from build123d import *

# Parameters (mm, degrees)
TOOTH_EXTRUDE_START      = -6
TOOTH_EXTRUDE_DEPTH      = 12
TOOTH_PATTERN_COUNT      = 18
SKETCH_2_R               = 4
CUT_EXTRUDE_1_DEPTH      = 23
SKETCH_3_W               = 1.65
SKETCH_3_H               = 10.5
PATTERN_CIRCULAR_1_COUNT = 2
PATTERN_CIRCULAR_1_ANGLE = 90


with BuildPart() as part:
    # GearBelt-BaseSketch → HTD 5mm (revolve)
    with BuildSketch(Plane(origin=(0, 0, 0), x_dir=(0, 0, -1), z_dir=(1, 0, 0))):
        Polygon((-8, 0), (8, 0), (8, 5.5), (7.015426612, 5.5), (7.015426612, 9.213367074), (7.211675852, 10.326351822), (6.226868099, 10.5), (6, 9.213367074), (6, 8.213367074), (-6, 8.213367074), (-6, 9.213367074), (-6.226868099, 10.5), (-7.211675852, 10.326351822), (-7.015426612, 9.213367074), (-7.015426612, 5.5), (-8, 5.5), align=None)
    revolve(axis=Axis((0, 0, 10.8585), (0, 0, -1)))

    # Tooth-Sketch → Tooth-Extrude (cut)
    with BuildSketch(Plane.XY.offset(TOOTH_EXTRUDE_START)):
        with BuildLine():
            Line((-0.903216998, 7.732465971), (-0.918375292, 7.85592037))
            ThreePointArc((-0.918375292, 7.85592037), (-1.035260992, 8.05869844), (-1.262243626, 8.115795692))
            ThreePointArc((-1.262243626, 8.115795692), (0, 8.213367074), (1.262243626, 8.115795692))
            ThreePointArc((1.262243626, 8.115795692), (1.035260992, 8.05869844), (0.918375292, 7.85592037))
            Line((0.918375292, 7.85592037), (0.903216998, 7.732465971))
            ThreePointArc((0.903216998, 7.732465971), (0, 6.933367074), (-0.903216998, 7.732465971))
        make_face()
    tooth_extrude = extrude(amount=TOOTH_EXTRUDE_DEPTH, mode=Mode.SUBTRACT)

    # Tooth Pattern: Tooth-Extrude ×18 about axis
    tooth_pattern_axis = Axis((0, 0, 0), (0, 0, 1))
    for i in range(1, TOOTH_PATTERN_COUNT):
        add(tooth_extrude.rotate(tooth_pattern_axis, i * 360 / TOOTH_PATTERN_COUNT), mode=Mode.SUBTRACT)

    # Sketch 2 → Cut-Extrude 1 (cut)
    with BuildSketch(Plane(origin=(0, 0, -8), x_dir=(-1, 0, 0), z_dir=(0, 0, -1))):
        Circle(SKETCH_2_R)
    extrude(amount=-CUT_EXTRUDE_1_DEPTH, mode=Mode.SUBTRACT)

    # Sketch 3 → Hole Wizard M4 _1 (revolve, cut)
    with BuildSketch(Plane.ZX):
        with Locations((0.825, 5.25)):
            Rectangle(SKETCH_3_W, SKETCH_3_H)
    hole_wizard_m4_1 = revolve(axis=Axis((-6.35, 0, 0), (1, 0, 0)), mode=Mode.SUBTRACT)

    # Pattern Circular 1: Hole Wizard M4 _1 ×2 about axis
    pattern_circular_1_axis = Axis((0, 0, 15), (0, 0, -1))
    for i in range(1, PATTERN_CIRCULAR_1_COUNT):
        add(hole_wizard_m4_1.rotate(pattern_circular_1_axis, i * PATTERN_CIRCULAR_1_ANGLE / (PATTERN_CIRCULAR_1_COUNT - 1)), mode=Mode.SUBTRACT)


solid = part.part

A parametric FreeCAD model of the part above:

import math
import FreeCAD as App
import Part
import Sketcher
Q = App.Units.Quantity


def add_polygon(sketch, points):
    """Adds a closed chain of lines whose ends are joined by coincident constraints."""
    first, n = sketch.GeometryCount, len(points)
    for a, b in zip(points, points[1:] + points[:1]):
        sketch.addGeometry(Part.LineSegment(App.Vector(*a, 0), App.Vector(*b, 0)), False)
    for i in range(n):
        sketch.addConstraint(Sketcher.Constraint("Coincident", first + i, 2, first + (i + 1) % n, 1))

doc = App.newDocument("Part")
params = doc.addObject("Spreadsheet::Sheet", "Params")
for row, (alias, value) in enumerate([
    ("sketch1_width", "1 mm"),
    ("sketch1_height", "16 mm"),
    ("sketch1_height2", "12 mm"),
    ("sketch1_length", "1 mm"),
    ("sketch1_width2", "5.5 mm"),
    ("revolution_angle", "360 deg"),
    ("sketch2_radius", "0.3 mm"),
    ("sketch2_radius2", "0.91 mm"),
    ("pocket1_length", "12 mm"),
    ("sketch3_diameter", "8 mm"),
    ("pocket2_length", "23 mm"),
    ("sketch4_width", "10.5 mm"),
    ("sketch4_height", "1.65 mm"),
    ("groove_angle", "360 deg"),
], start=1):
    params.set(f"A{row}", alias)
    params.set(f"B{row}", "=" + value)
    params.setAlias(f"B{row}", alias)

body = doc.addObject("PartDesign::Body", "Body")

sketch1 = body.newObject("Sketcher::SketchObject", "Sketch")
sketch1.AttachmentSupport = (doc.getObject("YZ_Plane"), [""])
sketch1.MapMode = "FlatFace"
add_polygon(sketch1, [(0, 8), (0, -8), (5.5, -8), (5.5, -7), (9.2, -7), (10.3, -7.2), (10.5, -6.2), (9.2, -6), (8.2, -6), (8.2, 6), (9.2, 6), (10.5, 6.2), (10.3, 7.2), (9.2, 7), (5.5, 7), (5.5, 8)])
sketch1.addConstraint([
    Sketcher.Constraint("Vertical", 0),
    Sketcher.Constraint("Horizontal", 1),
    Sketcher.Constraint("Vertical", 2),
    Sketcher.Constraint("Horizontal", 3),
    Sketcher.Constraint("Horizontal", 7),
    Sketcher.Constraint("Vertical", 8),
    Sketcher.Constraint("Horizontal", 9),
    Sketcher.Constraint("Horizontal", 13),
    Sketcher.Constraint("Vertical", 14),
    Sketcher.Constraint("Horizontal", 15),
    Sketcher.Constraint("Symmetric", 0, 2, 15, 2, -1, 1),
    Sketcher.Constraint("Symmetric", 6, 2, 9, 2, -1),
    Sketcher.Constraint("Symmetric", 5, 2, 10, 2, -1),
    Sketcher.Constraint("Symmetric", 4, 2, 11, 2, -1),
    Sketcher.Constraint("Symmetric", 3, 2, 12, 2, -1),
    Sketcher.Constraint("Perpendicular", 4, 5),
    Sketcher.Constraint("Perpendicular", 5, 6),
    Sketcher.Constraint("Vertical", 3, 2, 6, 2),
    Sketcher.Constraint("Vertical", 2, 2, 13, 2),
    Sketcher.Constraint("DistanceX", 7, 2, 7, 1, Q("1 mm")),
    Sketcher.Constraint("DistanceY", 0, 2, 0, 1, Q("16 mm")),
    Sketcher.Constraint("DistanceY", 8, 1, 8, 2, Q("12 mm")),
    Sketcher.Constraint("Angle", 4, Q("-10 deg")),
    Sketcher.Constraint("Distance", 5, Q("1 mm")),
    Sketcher.Constraint("DistanceX", 1, 1, 1, 2, Q("5.5 mm")),
    Sketcher.Constraint("DistanceX", 2, 2, 5, 2, Q("5 mm")),
    Sketcher.Constraint("Distance", 6, Q("1.306481 mm")),
])
sketch1.setExpression("Constraints[35]", "Params.sketch1_width")
sketch1.setExpression("Constraints[36]", "Params.sketch1_height")
sketch1.setExpression("Constraints[37]", "Params.sketch1_height2")
sketch1.setExpression("Constraints[39]", "Params.sketch1_length")
sketch1.setExpression("Constraints[40]", "Params.sketch1_width2")
revolution = body.newObject("PartDesign::Revolution", "Revolution")
revolution.Profile = sketch1
revolution.ReferenceAxis = (sketch1, ["V_Axis"])
revolution.setExpression("Angle", "Params.revolution_angle")

sketch2 = body.newObject("Sketcher::SketchObject", "Sketch001")
sketch2.AttachmentSupport = (doc.getObject("XY_Plane"), [""])
sketch2.MapMode = "FlatFace"
sketch2.AttachmentOffset = App.Placement(App.Vector(0, 0, -6), App.Rotation())
sketch2.addGeometry([
    Part.LineSegment(App.Vector(-0.92, 7.86, 0), App.Vector(-0.9, 7.73, 0)),
    Part.ArcOfCircle(Part.Circle(App.Vector(0, 7.84, 0), App.Vector(0, 0, 1), 0.91), math.radians(-173), math.radians(-7)),
    Part.LineSegment(App.Vector(0.9, 7.73, 0), App.Vector(0.92, 7.86, 0)),
    Part.ArcOfCircle(Part.Circle(App.Vector(1.22, 7.82, 0), App.Vector(0, 0, 1), 0.3), math.radians(81), math.radians(173)),
    Part.ArcOfCircle(Part.Circle(App.Vector(0, 0, 0), App.Vector(0, 0, 1), 8.21), math.radians(81.16), math.radians(98.84)),
    Part.ArcOfCircle(Part.Circle(App.Vector(-1.22, 7.82, 0), App.Vector(0, 0, 1), 0.3), math.radians(7), math.radians(99)),
], False)
sketch2.addConstraint([
    Sketcher.Constraint("Tangent", 0, 2, 1, 1),
    Sketcher.Constraint("Tangent", 1, 2, 2, 1),
    Sketcher.Constraint("Tangent", 2, 2, 3, 2),
    Sketcher.Constraint("Tangent", 3, 1, 4, 1),
    Sketcher.Constraint("Tangent", 4, 2, 5, 2),
    Sketcher.Constraint("Tangent", 5, 1, 0, 1),
    Sketcher.Constraint("Coincident", 4, 3, -1, 1),
    Sketcher.Constraint("Equal", 3, 5),
    Sketcher.Constraint("Symmetric", 0, 2, 1, 2, -2),
    Sketcher.Constraint("Radius", 3, Q("0.3 mm")),
    Sketcher.Constraint("Angle", 0, Q("-83 deg")),
    Sketcher.Constraint("Radius", 1, Q("0.91 mm")),
    Sketcher.Constraint("Radius", 4, Q("8.213367 mm")),
    Sketcher.Constraint("Distance", 0, Q("0.124382 mm")),
])
sketch2.setExpression("Constraints[9]", "Params.sketch2_radius")
sketch2.setExpression("Constraints[11]", "Params.sketch2_radius2")
pocket1 = body.newObject("PartDesign::Pocket", "Pocket")
pocket1.Profile = sketch2
pocket1.setExpression("Length", "Params.pocket1_length")
pocket1.Reversed = True
doc.recompute()

polarpattern = body.newObject("PartDesign::PolarPattern", "PolarPattern")
polarpattern.Originals = [pocket1]
polarpattern.Axis = (doc.getObject("Z_Axis"), [""])
polarpattern.Angle = 360
polarpattern.Occurrences = 18
body.Tip = polarpattern

sketch3 = body.newObject("Sketcher::SketchObject", "Sketch002")
sketch3.AttachmentSupport = (doc.getObject("XY_Plane"), [""])
sketch3.MapMode = "FlatFace"
sketch3.AttachmentOffset = App.Placement(App.Vector(0, 0, -8), App.Rotation())
sketch3.addGeometry(Part.Circle(App.Vector(0, 0, 0), App.Vector(0, 0, 1), 4), False)
sketch3.addConstraint([
    Sketcher.Constraint("Coincident", 0, 3, -1, 1),
    Sketcher.Constraint("Diameter", 0, Q("8 mm")),
])
sketch3.setExpression("Constraints[1]", "Params.sketch3_diameter")
pocket2 = body.newObject("PartDesign::Pocket", "Pocket001")
pocket2.Profile = sketch3
pocket2.setExpression("Length", "Params.pocket2_length")
pocket2.Reversed = True

sketch4 = body.newObject("Sketcher::SketchObject", "Sketch003")
sketch4.AttachmentSupport = (doc.getObject("XZ_Plane"), [""])
sketch4.MapMode = "FlatFace"
add_polygon(sketch4, [(10.5, 0), (0, 0), (0, 1.6), (10.5, 1.6)])
sketch4.addConstraint([
    Sketcher.Constraint("Horizontal", 0),
    Sketcher.Constraint("Vertical", 1),
    Sketcher.Constraint("Horizontal", 2),
    Sketcher.Constraint("Vertical", 3),
    Sketcher.Constraint("Coincident", 0, 2, -1, 1),
    Sketcher.Constraint("DistanceX", 0, 2, 0, 1, Q("10.5 mm")),
    Sketcher.Constraint("DistanceY", 1, 1, 1, 2, Q("1.65 mm")),
])
sketch4.setExpression("Constraints[9]", "Params.sketch4_width")
sketch4.setExpression("Constraints[10]", "Params.sketch4_height")
groove = body.newObject("PartDesign::Groove", "Groove")
groove.Profile = sketch4
groove.ReferenceAxis = (sketch4, ["H_Axis"])
groove.setExpression("Angle", "Params.groove_angle")
doc.recompute()

polarpattern2 = body.newObject("PartDesign::PolarPattern", "PolarPattern001")
polarpattern2.Originals = [groove]
polarpattern2.Axis = (doc.getObject("Z_Axis"), [""])
polarpattern2.Angle = 90
polarpattern2.Occurrences = 2
polarpattern2.Reversed = True
body.Tip = polarpattern2

doc.recompute()
